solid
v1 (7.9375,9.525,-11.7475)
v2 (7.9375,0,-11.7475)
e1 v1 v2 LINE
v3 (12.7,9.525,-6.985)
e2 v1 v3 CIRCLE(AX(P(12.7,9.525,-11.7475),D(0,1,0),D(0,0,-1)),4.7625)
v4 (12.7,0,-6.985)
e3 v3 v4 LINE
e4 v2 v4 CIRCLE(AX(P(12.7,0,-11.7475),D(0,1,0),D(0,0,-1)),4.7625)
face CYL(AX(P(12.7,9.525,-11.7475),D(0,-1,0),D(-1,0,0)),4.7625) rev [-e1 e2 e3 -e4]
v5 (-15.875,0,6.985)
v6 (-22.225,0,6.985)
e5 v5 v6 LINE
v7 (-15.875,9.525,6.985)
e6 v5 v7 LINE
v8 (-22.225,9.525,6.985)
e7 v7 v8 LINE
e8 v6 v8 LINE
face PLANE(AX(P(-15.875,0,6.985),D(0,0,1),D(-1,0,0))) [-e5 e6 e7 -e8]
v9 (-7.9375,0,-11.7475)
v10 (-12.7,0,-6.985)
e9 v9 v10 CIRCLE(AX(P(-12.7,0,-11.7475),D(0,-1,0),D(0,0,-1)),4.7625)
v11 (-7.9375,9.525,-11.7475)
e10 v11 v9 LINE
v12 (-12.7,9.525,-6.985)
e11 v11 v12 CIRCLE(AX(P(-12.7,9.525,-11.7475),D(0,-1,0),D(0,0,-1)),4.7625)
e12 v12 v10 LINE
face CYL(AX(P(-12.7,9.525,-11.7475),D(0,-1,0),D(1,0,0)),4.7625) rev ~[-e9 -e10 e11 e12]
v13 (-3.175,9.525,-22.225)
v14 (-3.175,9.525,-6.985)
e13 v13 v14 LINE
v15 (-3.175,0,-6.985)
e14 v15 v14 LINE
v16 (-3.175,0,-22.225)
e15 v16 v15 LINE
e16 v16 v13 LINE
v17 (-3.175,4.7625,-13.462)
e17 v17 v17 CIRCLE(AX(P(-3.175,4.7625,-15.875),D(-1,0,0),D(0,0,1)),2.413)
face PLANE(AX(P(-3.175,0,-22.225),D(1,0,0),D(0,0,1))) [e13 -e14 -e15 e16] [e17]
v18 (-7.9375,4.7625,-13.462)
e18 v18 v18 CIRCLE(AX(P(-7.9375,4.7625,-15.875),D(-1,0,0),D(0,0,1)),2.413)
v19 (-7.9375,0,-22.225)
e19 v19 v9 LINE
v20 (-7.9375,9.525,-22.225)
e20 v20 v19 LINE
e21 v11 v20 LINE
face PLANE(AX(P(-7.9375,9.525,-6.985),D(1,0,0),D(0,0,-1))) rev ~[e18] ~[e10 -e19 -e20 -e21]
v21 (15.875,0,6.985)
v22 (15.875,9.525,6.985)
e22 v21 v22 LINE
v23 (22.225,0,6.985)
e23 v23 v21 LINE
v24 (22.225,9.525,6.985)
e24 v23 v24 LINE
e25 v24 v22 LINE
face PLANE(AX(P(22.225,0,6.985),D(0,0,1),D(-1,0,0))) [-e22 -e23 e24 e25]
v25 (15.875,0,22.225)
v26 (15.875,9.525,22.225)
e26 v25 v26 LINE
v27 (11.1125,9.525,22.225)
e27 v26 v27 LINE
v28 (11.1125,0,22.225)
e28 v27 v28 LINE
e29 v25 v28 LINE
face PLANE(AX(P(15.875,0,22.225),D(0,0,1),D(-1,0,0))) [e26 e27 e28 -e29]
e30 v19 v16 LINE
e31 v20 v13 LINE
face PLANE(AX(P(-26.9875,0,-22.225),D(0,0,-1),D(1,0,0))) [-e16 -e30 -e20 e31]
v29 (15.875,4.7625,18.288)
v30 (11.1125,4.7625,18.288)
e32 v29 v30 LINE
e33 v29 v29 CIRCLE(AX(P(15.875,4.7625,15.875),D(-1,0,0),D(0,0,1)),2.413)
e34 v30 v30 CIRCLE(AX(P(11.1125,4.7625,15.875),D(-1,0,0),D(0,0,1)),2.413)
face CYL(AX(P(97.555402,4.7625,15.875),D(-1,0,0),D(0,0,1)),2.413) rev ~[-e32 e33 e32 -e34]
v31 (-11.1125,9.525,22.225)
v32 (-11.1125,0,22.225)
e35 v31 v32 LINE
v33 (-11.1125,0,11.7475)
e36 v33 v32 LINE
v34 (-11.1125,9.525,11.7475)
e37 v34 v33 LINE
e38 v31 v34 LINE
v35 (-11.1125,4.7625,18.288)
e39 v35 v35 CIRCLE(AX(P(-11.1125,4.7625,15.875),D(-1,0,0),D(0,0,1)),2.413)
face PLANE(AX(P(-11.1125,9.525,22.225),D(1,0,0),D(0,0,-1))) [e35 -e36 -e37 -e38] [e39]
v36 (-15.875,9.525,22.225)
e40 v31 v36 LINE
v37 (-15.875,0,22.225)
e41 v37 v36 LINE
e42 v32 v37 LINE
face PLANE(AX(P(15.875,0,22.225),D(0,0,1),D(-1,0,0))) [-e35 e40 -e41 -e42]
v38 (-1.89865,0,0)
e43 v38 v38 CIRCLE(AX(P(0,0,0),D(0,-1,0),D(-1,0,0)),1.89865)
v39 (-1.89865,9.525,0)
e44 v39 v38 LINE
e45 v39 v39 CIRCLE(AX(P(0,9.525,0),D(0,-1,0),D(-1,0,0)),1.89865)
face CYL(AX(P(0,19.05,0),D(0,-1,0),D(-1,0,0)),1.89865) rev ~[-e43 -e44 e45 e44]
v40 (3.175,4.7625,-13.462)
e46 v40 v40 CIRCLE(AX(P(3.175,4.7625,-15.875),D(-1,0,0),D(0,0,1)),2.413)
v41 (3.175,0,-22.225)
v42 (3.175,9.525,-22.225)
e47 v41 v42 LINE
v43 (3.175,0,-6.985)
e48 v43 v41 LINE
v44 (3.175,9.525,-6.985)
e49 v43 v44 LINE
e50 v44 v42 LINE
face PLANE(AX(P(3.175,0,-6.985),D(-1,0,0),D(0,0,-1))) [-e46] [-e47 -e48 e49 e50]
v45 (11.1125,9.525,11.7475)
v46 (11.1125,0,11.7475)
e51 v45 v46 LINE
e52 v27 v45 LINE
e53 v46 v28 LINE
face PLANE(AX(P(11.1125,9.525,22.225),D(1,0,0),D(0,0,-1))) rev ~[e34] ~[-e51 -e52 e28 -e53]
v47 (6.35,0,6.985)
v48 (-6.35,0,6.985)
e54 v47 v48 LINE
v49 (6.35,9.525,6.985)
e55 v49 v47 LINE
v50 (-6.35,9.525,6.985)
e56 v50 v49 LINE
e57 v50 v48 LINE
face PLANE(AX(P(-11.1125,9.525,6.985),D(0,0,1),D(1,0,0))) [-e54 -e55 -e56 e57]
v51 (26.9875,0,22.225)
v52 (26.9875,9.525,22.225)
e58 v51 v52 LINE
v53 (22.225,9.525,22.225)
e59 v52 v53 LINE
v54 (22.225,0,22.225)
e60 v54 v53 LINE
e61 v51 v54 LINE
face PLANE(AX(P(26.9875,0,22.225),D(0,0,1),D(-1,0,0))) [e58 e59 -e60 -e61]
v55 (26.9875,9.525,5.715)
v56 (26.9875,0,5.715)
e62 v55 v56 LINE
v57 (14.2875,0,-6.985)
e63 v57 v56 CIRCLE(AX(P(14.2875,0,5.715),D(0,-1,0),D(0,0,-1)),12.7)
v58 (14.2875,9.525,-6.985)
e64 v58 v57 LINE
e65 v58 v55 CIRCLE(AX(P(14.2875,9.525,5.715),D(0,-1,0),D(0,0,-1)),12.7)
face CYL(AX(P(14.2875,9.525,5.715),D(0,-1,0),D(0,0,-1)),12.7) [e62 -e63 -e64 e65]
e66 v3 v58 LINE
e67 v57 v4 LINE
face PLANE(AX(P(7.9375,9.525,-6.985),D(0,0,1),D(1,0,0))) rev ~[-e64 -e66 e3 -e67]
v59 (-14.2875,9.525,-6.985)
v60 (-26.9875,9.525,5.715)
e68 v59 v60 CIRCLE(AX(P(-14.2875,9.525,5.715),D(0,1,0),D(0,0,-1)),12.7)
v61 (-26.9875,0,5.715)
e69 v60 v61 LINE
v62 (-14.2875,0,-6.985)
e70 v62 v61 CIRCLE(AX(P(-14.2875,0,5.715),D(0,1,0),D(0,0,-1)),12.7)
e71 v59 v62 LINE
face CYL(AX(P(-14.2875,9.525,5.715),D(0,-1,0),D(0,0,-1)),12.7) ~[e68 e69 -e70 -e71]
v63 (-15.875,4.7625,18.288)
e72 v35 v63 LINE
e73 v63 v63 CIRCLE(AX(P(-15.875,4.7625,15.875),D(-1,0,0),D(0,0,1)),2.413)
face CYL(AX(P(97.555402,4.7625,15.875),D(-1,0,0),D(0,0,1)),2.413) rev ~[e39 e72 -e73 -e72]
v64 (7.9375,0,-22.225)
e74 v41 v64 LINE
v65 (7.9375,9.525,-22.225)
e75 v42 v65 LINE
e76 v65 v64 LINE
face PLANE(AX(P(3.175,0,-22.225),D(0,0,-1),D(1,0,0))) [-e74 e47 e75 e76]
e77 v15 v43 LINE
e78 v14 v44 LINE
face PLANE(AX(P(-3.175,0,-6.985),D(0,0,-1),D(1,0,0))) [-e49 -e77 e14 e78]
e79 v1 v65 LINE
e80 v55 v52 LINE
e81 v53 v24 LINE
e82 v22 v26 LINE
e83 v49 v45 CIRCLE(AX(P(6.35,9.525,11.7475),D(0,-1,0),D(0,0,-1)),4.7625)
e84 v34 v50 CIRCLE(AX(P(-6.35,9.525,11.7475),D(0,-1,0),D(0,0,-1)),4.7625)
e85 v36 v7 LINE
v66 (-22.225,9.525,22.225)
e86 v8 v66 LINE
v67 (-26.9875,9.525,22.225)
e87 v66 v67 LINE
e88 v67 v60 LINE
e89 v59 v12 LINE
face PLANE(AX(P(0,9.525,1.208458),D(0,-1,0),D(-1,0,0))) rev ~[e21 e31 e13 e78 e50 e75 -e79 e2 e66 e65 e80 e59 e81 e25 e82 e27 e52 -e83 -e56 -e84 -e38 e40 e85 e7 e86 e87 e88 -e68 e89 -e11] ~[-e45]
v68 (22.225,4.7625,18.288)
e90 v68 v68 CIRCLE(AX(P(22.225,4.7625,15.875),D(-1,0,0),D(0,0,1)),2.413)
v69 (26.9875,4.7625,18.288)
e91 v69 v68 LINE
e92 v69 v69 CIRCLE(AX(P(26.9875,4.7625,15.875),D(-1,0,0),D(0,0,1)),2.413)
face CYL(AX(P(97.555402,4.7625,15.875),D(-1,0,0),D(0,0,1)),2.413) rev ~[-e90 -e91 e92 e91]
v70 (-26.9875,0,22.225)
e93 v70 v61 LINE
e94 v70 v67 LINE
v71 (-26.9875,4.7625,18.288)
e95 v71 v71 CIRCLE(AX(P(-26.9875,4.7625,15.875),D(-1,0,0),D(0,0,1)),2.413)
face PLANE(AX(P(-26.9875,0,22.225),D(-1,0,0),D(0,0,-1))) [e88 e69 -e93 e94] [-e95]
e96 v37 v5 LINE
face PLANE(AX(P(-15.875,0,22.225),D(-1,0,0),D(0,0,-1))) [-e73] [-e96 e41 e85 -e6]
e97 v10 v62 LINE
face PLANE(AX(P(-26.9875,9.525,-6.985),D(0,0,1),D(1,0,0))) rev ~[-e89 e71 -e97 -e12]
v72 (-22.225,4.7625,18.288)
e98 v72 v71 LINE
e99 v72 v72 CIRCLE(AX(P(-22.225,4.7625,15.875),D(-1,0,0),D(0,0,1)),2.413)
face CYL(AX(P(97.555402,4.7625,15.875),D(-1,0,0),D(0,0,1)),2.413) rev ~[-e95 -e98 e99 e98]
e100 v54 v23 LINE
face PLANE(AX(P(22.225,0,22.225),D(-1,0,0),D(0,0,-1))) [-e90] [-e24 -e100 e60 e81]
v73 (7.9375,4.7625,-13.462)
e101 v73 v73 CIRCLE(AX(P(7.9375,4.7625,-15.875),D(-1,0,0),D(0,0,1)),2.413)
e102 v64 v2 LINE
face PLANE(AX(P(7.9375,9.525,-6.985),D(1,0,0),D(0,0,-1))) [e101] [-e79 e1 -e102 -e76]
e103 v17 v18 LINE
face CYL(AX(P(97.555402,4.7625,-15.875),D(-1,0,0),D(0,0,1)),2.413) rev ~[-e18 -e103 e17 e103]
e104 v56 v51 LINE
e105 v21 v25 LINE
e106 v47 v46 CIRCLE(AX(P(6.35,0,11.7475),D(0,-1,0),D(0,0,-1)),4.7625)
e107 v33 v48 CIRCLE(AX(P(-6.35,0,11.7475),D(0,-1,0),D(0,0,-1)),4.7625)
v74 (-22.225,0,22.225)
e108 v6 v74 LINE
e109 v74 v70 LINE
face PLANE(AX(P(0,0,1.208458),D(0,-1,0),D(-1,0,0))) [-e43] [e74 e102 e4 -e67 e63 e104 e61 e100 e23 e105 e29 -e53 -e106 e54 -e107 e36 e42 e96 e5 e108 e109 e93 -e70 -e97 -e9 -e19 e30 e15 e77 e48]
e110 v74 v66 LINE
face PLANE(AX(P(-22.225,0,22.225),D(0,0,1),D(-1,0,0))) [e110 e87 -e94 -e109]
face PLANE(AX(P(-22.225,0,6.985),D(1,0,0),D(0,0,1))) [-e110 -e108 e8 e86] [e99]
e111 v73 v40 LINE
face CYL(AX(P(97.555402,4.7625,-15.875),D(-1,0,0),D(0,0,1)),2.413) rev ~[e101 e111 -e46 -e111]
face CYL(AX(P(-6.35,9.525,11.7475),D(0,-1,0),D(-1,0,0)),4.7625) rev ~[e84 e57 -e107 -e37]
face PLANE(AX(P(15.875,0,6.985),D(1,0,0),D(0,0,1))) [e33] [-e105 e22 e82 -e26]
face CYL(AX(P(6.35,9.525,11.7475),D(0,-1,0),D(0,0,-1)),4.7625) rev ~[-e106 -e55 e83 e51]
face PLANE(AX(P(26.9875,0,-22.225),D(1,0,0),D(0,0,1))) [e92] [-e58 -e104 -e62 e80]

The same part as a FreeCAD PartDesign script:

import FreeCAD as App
import Part
import Sketcher
from FreeCAD import Vector
Q = App.Units.Quantity


def edges_at(feature, points):
    """Names of the edges that pass closest to the given points."""
    edges = feature.Shape.Edges
    near = lambda p: min(range(len(edges)), key=lambda i: edges[i].distToShape(Part.Vertex(*p))[0])
    return sorted({f"Edge{near(p) + 1}" for p in points})

doc = App.newDocument("Part")
body = doc.addObject("PartDesign::Body", "Body")

# Sketch on XZ plane
sketch1 = body.newObject("Sketcher::SketchObject", "Sketch")
sketch1.AttachmentSupport = (doc.getObject("XZ_Plane"), [""])
sketch1.MapMode = "FlatFace"
sketch1.addGeometry([
    Part.LineSegment(Vector(-3.2, -7, 0), Vector(-3.2, -22.2, 0)),  # 0
    Part.LineSegment(Vector(-3.2, -22.2, 0), Vector(-27, -22.2, 0)),  # 1
    Part.LineSegment(Vector(-27, -22.2, 0), Vector(-27, 22.2, 0)),  # 2
    Part.LineSegment(Vector(-27, 22.2, 0), Vector(-22.2, 22.2, 0)),  # 3
    Part.LineSegment(Vector(-22.2, 22.2, 0), Vector(-22.2, 7, 0)),  # 4
    Part.LineSegment(Vector(-22.2, 7, 0), Vector(-15.9, 7, 0)),  # 5
    Part.LineSegment(Vector(-15.9, 7, 0), Vector(-15.9, 22.2, 0)),  # 6
    Part.LineSegment(Vector(-15.9, 22.2, 0), Vector(15.9, 22.2, 0)),  # 7
    Part.LineSegment(Vector(15.9, 22.2, 0), Vector(15.9, 7, 0)),  # 8
    Part.LineSegment(Vector(15.9, 7, 0), Vector(22.2, 7, 0)),  # 9
    Part.LineSegment(Vector(22.2, 7, 0), Vector(22.2, 22.2, 0)),  # 10
    Part.LineSegment(Vector(22.2, 22.2, 0), Vector(27, 22.2, 0)),  # 11
    Part.LineSegment(Vector(27, 22.2, 0), Vector(27, -22.2, 0)),  # 12
    Part.LineSegment(Vector(27, -22.2, 0), Vector(3.2, -22.2, 0)),  # 13
    Part.LineSegment(Vector(3.2, -22.2, 0), Vector(3.2, -7, 0)),  # 14
    Part.LineSegment(Vector(3.2, -7, 0), Vector(-3.2, -7, 0)),  # 15
], False)
sketch1.addConstraint([
    Sketcher.Constraint("Coincident", 0, 2, 1, 1),
    Sketcher.Constraint("Coincident", 1, 2, 2, 1),
    Sketcher.Constraint("Coincident", 2, 2, 3, 1),
    Sketcher.Constraint("Coincident", 3, 2, 4, 1),
    Sketcher.Constraint("Coincident", 4, 2, 5, 1),
    Sketcher.Constraint("Coincident", 5, 2, 6, 1),
    Sketcher.Constraint("Coincident", 6, 2, 7, 1),
    Sketcher.Constraint("Coincident", 7, 2, 8, 1),
    Sketcher.Constraint("Coincident", 8, 2, 9, 1),
    Sketcher.Constraint("Coincident", 9, 2, 10, 1),
    Sketcher.Constraint("Coincident", 10, 2, 11, 1),
    Sketcher.Constraint("Coincident", 11, 2, 12, 1),
    Sketcher.Constraint("Coincident", 12, 2, 13, 1),
    Sketcher.Constraint("Coincident", 13, 2, 14, 1),
    Sketcher.Constraint("Coincident", 14, 2, 15, 1),
    Sketcher.Constraint("Coincident", 15, 2, 0, 1),
    Sketcher.Constraint("Vertical", 0),
    Sketcher.Constraint("Horizontal", 1),
    Sketcher.Constraint("Vertical", 2),
    Sketcher.Constraint("Horizontal", 3),
    Sketcher.Constraint("Vertical", 4),
    Sketcher.Constraint("Horizontal", 5),
    Sketcher.Constraint("Vertical", 6),
    Sketcher.Constraint("Horizontal", 7),
    Sketcher.Constraint("Vertical", 8),
    Sketcher.Constraint("Horizontal", 9),
    Sketcher.Constraint("Vertical", 10),
    Sketcher.Constraint("Horizontal", 11),
    Sketcher.Constraint("Vertical", 12),
    Sketcher.Constraint("Horizontal", 13),
    Sketcher.Constraint("Vertical", 14),
    Sketcher.Constraint("Horizontal", 15),
    Sketcher.Constraint("Symmetric", 1, 2, 11, 2, -1, 1),
    Sketcher.Constraint("Symmetric", 5, 2, 8, 2, -2),
    Sketcher.Constraint("Symmetric", 3, 2, 10, 2, -2),
    Sketcher.Constraint("Symmetric", 0, 2, 13, 2, -2),
    Sketcher.Constraint("Horizontal", 3, 2, 6, 2),
    Sketcher.Constraint("Equal", 9, 15),
    Sketcher.Constraint("Equal", 0, 4),
    Sketcher.Constraint("DistanceY", 0, 2, 0, 1, Q("0.6 in")),
    Sketcher.Constraint("DistanceX", 0, 2, 9, 2, Q("1 in")),
    Sketcher.Constraint("DistanceX", 5, 1, 5, 2, Q("0.25 in")),
    Sketcher.Constraint("DistanceY", 2, 1, 2, 2, Q("1.75 in")),
    Sketcher.Constraint("DistanceX", 1, 2, 1, 1, Q("0.9375 in")),
])
pad1 = body.newObject("PartDesign::Pad", "Pad")
pad1.Profile = sketch1
pad1.Length = Q("0.375 in")
pad1.Reversed = True

# Sketch on XZ plane
sketch2 = body.newObject("Sketcher::SketchObject", "Sketch001")
sketch2.AttachmentSupport = (doc.getObject("XZ_Plane"), [""])
sketch2.MapMode = "FlatFace"
sketch2.AttachmentOffset = App.Placement(Vector(0, 0, -0.375 * 25.4), App.Rotation())
sketch2.addGeometry([
    Part.LineSegment(Vector(-27, -22, 0), Vector(-27, -7, 0)),  # 0
    Part.LineSegment(Vector(-27, -7, 0), Vector(-8, -7, 0)),  # 1
    Part.LineSegment(Vector(-8, -7, 0), Vector(-8, -22, 0)),  # 2
    Part.LineSegment(Vector(-8, -22, 0), Vector(-27, -22, 0)),  # 3
    Part.LineSegment(Vector(8, -22, 0), Vector(8, -7, 0)),  # 4
    Part.LineSegment(Vector(8, -7, 0), Vector(27, -7, 0)),  # 5
    Part.LineSegment(Vector(27, -7, 0), Vector(27, -22, 0)),  # 6
    Part.LineSegment(Vector(27, -22, 0), Vector(8, -22, 0)),  # 7
    Part.LineSegment(Vector(-11, 7, 0), Vector(-11, 22, 0)),  # 8
    Part.LineSegment(Vector(-11, 22, 0), Vector(11, 22, 0)),  # 9
    Part.LineSegment(Vector(11, 22, 0), Vector(11, 7, 0)),  # 10
    Part.LineSegment(Vector(11, 7, 0), Vector(-11, 7, 0)),  # 11
], False)
sketch2.addConstraint([
    Sketcher.Constraint("Coincident", 0, 2, 1, 1),
    Sketcher.Constraint("Coincident", 1, 2, 2, 1),
    Sketcher.Constraint("Coincident", 2, 2, 3, 1),
    Sketcher.Constraint("Coincident", 3, 2, 0, 1),
    Sketcher.Constraint("Coincident", 4, 2, 5, 1),
    Sketcher.Constraint("Coincident", 5, 2, 6, 1),
    Sketcher.Constraint("Coincident", 6, 2, 7, 1),
    Sketcher.Constraint("Coincident", 7, 2, 4, 1),
    Sketcher.Constraint("Coincident", 8, 2, 9, 1),
    Sketcher.Constraint("Coincident", 9, 2, 10, 1),
    Sketcher.Constraint("Coincident", 10, 2, 11, 1),
    Sketcher.Constraint("Coincident", 11, 2, 8, 1),
    Sketcher.Constraint("Vertical", 0),
    Sketcher.Constraint("Horizontal", 1),
    Sketcher.Constraint("Vertical", 2),
    Sketcher.Constraint("Horizontal", 3),
    Sketcher.Constraint("Vertical", 4),
    Sketcher.Constraint("Horizontal", 5),
    Sketcher.Constraint("Vertical", 6),
    Sketcher.Constraint("Horizontal", 7),
    Sketcher.Constraint("Vertical", 8),
    Sketcher.Constraint("Horizontal", 9),
    Sketcher.Constraint("Vertical", 10),
    Sketcher.Constraint("Horizontal", 11),
    Sketcher.Constraint("Symmetric", 1, 2, 4, 2, -2),
    Sketcher.Constraint("Symmetric", 3, 2, 6, 2, -2),
    Sketcher.Constraint("Equal", 6, 8),
    Sketcher.Constraint("DistanceY", 0, 1, 0, 2, Q("0.6 in")),
    Sketcher.Constraint("DistanceX", 1, 1, 1, 2, Q("0.75 in")),
    Sketcher.Constraint("DistanceX", 9, 1, 9, 2, Q("0.875 in")),
    Sketcher.Constraint("DistanceY", 1, 2, 8, 2, Q("1.15 in")),
    Sketcher.Constraint("DistanceX", 8, 2, 4, 2, Q("0.75 in")),
    Sketcher.Constraint("DistanceX", 1, 2, 9, 2, Q("0.75 in")),
    Sketcher.Constraint("DistanceY", 0, 2, -1, 1, Q("0.275 in")),
])
pocket1 = body.newObject("PartDesign::Pocket", "Pocket")
pocket1.Profile = sketch2
pocket1.Type = "ThroughAll"
pocket1.Reversed = True

# Sketch on YZ plane
sketch3 = body.newObject("Sketcher::SketchObject", "Sketch002")
sketch3.AttachmentSupport = (doc.getObject("YZ_Plane"), [""])
sketch3.MapMode = "FlatFace"
sketch3.AttachmentOffset = App.Placement(Vector(0, 0, 1.0625 * 25.4), App.Rotation())
sketch3.addGeometry([
    Part.Circle(Vector(4.8, 15.9, 0), Vector(0, 0, 1), 2.4),
    Part.Circle(Vector(4.8, -15.9, 0), Vector(0, 0, 1), 2.4),
], False)
sketch3.addConstraint([
    Sketcher.Constraint("Equal", 0, 1),
    Sketcher.Constraint("Symmetric", 0, 3, 1, 3, -1),
    Sketcher.Constraint("Diameter", 0, Q("0.19 in")),
    Sketcher.Constraint("DistanceY", 1, 3, 0, 3, Q("1.25 in")),
    Sketcher.Constraint("DistanceX", -1, 1, 0, 3, Q("0.1875 in")),
])
doc.recompute()
hole = body.newObject("PartDesign::Hole", "Hole")
hole.Profile = sketch3
hole.ThreadType = "None"
hole.Diameter = Q("0.19 in")
hole.DepthType = "ThroughAll"

# Sketch on XZ plane
sketch4 = body.newObject("Sketcher::SketchObject", "Sketch003")
sketch4.AttachmentSupport = (doc.getObject("XZ_Plane"), [""])
sketch4.MapMode = "FlatFace"
sketch4.AttachmentOffset = App.Placement(Vector(0, 0, -0.375 * 25.4), App.Rotation())
sketch4.addGeometry(Part.Circle(Vector(0, 0, 0), Vector(0, 0, 1), 1.9), False)
sketch4.addConstraint([
    Sketcher.Constraint("Coincident", 0, 3, -1, 1),
    Sketcher.Constraint("Diameter", 0, Q("0.1495 in")),
])
doc.recompute()
hole2 = body.newObject("PartDesign::Hole", "Hole001")
hole2.Profile = sketch4
hole2.ThreadType = "None"
hole2.Diameter = Q("0.1495 in")
hole2.DepthType = "Dimension"
hole2.Depth = Q("0.375 in")
hole2.DrillPoint = "Flat"
hole2.Reversed = True
doc.recompute()

fillet = body.newObject("PartDesign::Fillet", "Fillet")
fillet.Base = (hole2, edges_at(hole2, [
    (-7.938, 4.763, -6.985),
    (7.938, 4.763, -6.985),
    (-11.113, 4.763, 6.985),
    (11.113, 4.763, 6.985),
]))
fillet.Radius = Q("0.1875 in")
doc.recompute()

fillet2 = body.newObject("PartDesign::Fillet", "Fillet001")
fillet2.Base = (fillet, edges_at(fillet, [(-26.988, 4.763, -6.985), (26.988, 4.763, -6.985)]))
fillet2.Radius = Q("0.5 in")

doc.recompute()
